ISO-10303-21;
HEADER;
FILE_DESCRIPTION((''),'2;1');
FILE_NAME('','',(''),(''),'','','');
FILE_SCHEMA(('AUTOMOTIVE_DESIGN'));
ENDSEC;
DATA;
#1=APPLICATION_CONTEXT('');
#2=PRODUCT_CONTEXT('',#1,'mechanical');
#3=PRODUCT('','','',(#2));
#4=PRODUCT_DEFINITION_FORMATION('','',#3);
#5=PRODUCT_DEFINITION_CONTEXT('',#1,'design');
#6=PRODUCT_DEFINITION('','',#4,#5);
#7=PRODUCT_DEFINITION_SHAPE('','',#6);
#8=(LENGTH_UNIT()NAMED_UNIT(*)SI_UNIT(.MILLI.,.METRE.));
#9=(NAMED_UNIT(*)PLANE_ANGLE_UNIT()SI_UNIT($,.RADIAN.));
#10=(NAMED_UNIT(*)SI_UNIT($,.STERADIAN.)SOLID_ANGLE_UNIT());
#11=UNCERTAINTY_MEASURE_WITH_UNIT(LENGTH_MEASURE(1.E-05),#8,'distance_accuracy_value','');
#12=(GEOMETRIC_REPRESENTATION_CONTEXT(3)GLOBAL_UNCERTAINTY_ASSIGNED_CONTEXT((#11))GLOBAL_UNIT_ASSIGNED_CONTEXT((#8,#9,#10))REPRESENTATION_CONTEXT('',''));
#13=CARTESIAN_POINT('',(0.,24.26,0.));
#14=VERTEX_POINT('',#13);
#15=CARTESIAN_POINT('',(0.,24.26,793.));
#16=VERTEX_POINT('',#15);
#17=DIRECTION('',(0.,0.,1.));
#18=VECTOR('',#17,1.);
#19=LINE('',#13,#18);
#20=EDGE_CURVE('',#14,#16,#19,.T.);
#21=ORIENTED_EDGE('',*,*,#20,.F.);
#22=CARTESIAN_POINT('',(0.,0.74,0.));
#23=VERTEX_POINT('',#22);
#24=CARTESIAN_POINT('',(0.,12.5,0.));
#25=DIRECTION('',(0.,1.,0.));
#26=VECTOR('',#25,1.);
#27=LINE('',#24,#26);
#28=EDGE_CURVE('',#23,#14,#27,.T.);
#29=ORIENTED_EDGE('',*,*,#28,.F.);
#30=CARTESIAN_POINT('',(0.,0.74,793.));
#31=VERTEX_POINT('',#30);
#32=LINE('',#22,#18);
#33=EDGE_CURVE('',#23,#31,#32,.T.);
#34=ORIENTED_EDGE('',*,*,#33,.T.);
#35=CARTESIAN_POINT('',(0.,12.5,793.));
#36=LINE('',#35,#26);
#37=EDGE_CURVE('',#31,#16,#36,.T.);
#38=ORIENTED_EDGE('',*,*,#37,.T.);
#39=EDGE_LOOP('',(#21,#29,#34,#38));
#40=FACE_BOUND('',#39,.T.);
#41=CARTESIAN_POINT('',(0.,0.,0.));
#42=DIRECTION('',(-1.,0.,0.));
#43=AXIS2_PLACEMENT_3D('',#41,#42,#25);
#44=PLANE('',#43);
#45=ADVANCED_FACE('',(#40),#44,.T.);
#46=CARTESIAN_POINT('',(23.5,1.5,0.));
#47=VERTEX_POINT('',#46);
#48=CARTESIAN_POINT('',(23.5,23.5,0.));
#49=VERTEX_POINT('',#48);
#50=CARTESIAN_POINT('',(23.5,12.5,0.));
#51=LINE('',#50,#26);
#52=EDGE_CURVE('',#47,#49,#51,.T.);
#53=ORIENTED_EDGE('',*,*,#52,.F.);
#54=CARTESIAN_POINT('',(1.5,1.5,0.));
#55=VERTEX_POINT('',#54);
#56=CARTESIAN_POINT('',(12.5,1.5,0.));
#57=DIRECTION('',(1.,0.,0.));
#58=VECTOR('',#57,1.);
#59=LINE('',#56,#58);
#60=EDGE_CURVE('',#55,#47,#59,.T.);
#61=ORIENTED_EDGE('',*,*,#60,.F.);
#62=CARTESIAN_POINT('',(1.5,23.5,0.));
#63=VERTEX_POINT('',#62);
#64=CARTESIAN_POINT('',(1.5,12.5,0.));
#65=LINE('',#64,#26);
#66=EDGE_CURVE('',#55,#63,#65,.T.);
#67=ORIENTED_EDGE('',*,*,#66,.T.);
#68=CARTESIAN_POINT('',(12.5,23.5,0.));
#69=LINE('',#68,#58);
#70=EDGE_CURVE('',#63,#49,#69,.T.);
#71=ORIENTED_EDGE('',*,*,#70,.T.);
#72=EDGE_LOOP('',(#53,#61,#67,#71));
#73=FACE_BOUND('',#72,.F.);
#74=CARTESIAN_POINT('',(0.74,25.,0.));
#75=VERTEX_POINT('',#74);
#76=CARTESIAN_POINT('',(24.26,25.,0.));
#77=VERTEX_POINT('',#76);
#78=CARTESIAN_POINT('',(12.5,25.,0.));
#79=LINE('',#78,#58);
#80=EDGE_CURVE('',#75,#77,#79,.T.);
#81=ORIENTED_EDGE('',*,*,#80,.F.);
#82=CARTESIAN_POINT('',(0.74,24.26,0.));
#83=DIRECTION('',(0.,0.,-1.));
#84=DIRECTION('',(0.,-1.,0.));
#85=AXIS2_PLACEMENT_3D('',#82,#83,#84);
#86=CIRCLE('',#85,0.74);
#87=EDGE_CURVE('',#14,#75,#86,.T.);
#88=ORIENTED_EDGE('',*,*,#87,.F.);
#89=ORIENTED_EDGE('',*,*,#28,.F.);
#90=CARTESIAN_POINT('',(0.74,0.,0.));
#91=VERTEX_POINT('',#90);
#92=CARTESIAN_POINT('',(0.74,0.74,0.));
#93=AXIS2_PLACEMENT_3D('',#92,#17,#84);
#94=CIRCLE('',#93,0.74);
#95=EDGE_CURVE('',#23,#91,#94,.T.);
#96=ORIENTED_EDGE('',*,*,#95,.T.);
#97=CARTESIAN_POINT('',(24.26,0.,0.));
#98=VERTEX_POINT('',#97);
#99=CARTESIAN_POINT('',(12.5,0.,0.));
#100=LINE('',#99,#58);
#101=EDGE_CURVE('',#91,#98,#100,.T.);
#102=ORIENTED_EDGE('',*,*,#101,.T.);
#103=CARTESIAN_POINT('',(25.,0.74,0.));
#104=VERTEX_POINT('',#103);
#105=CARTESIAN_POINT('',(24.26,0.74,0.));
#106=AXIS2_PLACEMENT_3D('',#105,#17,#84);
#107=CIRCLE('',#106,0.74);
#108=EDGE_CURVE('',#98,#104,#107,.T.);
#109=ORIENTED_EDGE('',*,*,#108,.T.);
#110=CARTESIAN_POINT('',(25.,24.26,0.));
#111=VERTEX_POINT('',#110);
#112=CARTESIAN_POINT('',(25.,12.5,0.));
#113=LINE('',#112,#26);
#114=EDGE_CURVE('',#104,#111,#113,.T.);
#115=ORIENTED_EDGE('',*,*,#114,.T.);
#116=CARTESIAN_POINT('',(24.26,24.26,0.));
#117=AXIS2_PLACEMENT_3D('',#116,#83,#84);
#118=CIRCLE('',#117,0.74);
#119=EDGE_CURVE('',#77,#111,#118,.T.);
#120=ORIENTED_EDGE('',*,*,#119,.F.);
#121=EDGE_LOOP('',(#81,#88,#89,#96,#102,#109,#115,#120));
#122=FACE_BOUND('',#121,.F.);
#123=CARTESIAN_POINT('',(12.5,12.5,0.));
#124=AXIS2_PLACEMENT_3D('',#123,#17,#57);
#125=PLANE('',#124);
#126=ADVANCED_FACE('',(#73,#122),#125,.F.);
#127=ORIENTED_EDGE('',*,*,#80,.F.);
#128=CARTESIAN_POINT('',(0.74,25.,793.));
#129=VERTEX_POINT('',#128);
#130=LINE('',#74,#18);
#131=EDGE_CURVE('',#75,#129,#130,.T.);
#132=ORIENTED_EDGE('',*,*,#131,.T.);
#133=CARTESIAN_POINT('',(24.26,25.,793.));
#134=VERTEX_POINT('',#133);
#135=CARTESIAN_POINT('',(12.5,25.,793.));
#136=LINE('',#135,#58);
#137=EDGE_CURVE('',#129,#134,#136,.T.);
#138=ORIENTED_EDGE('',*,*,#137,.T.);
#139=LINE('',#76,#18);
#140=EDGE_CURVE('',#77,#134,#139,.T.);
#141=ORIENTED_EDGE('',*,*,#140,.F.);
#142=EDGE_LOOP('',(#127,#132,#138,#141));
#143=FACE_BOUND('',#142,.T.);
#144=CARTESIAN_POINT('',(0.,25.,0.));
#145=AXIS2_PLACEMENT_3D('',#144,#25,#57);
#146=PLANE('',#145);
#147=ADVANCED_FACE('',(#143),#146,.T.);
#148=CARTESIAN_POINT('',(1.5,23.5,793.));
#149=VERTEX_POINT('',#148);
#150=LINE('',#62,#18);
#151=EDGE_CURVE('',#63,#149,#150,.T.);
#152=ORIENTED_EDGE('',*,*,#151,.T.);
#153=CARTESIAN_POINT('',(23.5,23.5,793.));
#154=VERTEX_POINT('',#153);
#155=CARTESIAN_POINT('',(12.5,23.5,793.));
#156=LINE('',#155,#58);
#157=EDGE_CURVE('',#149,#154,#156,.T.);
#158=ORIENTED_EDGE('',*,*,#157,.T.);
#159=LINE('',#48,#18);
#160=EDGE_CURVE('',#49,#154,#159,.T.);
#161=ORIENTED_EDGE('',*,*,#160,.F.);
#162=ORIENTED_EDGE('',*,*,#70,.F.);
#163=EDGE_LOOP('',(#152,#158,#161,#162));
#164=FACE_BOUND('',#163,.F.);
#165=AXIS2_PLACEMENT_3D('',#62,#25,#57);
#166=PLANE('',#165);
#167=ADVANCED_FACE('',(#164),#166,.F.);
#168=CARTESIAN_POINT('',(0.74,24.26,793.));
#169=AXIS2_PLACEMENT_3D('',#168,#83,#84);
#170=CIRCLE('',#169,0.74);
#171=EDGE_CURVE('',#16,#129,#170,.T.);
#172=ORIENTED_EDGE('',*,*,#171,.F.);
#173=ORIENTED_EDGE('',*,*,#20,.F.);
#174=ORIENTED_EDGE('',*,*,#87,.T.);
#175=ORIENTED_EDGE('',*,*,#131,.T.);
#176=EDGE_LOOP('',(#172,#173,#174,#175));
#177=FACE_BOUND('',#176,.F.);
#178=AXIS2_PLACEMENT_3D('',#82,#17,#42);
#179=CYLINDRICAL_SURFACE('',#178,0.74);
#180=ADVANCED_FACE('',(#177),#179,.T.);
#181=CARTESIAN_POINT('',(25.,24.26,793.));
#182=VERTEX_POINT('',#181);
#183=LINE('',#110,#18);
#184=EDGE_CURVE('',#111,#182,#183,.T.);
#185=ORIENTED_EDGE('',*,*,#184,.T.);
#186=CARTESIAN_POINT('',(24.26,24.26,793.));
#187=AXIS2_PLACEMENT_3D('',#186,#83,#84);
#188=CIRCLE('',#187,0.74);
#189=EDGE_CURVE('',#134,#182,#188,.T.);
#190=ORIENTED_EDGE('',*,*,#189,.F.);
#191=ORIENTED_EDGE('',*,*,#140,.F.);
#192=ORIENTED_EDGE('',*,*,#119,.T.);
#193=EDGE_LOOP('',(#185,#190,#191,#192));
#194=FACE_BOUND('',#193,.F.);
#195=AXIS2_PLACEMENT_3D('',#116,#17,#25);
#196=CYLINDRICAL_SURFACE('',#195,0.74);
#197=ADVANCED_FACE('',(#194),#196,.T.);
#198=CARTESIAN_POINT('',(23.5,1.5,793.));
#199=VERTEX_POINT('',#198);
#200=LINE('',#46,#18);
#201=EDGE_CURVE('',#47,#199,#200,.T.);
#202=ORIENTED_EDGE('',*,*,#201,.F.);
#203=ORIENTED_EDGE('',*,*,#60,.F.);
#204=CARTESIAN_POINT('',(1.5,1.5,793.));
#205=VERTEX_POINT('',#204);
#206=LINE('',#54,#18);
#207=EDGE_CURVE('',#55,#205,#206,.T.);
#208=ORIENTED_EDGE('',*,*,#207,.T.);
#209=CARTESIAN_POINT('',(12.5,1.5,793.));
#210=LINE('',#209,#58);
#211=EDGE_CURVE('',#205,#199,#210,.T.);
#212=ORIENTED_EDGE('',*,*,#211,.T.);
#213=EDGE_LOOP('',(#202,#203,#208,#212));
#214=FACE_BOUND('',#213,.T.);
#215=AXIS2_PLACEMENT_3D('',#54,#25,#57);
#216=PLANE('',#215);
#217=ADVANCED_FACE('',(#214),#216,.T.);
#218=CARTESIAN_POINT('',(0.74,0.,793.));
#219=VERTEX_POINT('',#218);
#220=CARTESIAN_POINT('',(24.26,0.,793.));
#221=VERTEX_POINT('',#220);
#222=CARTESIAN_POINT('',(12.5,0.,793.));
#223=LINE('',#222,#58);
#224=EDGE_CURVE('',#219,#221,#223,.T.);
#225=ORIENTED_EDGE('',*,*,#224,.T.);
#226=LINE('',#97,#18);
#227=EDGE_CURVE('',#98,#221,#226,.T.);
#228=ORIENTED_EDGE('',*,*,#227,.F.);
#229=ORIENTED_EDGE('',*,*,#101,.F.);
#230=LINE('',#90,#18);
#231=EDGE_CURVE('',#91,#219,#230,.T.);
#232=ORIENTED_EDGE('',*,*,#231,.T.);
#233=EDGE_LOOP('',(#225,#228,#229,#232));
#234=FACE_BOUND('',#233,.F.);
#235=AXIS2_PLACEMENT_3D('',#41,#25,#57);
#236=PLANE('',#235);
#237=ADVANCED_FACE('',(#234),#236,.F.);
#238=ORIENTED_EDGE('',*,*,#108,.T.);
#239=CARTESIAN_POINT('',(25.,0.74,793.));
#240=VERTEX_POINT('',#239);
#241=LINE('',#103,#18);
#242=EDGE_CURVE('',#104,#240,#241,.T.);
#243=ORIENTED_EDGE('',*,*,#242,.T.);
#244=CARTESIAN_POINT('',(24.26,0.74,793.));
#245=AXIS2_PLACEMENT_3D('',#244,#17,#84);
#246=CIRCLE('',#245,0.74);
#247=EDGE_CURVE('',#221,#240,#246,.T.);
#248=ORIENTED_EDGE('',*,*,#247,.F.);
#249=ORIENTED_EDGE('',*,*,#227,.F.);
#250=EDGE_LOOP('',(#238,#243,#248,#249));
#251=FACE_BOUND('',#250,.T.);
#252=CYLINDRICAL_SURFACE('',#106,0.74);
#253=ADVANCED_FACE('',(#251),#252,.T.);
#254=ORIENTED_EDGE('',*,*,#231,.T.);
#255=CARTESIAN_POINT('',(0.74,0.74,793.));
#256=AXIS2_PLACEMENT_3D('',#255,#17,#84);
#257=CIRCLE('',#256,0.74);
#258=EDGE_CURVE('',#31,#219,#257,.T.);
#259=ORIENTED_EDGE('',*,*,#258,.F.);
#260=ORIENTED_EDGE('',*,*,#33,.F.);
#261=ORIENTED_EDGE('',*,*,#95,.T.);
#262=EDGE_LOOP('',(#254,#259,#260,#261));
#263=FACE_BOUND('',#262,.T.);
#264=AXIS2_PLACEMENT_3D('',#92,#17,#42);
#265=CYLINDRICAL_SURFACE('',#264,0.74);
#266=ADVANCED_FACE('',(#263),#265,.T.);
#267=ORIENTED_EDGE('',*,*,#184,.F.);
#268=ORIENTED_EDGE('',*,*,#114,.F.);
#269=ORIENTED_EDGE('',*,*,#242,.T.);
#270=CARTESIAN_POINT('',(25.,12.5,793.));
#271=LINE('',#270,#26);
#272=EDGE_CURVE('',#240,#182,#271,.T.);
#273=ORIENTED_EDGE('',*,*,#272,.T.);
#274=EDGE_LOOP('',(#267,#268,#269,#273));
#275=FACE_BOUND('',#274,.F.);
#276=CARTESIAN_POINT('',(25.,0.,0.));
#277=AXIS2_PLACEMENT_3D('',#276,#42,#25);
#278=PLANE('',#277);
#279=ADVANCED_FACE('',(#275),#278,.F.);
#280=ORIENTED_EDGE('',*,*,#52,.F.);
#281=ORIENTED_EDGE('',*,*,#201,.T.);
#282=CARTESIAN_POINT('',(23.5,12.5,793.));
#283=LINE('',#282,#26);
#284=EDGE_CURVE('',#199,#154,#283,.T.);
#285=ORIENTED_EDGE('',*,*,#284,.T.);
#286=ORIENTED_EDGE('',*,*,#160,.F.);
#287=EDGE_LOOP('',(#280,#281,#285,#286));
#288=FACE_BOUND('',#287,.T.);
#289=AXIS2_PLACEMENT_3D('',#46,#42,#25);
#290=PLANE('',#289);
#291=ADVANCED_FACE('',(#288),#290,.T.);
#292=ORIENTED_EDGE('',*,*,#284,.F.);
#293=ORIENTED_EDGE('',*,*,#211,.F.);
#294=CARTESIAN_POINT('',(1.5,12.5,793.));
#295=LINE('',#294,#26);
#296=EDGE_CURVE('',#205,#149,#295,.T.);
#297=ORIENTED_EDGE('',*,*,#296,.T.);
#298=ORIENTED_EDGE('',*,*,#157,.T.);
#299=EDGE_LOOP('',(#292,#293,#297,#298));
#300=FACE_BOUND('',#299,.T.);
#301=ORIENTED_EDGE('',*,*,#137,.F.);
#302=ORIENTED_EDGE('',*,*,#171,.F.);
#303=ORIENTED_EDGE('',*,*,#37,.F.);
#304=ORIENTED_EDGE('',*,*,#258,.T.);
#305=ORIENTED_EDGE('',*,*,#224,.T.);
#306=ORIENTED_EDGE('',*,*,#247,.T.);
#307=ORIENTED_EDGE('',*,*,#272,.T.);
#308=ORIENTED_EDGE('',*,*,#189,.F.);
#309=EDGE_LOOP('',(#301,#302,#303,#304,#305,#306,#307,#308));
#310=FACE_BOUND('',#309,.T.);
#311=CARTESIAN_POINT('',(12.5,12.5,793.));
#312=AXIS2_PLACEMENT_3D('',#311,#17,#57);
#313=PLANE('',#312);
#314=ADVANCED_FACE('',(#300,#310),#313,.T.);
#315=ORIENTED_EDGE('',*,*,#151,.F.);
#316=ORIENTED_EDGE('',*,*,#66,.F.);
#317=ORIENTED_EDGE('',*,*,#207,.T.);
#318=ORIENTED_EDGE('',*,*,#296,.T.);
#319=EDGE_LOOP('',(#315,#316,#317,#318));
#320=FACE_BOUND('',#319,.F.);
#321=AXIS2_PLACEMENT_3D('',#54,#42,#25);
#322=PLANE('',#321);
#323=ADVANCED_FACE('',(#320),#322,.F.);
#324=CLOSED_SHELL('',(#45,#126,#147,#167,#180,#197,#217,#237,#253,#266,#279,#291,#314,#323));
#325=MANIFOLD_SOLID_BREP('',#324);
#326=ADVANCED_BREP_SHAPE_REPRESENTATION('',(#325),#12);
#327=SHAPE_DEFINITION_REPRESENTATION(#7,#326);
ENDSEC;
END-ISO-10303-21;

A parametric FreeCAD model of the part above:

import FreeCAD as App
import Part
import Sketcher

V = App.Vector
Q = App.Units.Quantity


def edges_at(feature, points):
    """Names of the edges that pass closest to the given points."""
    edges = feature.Shape.Edges
    near = lambda p: min(range(len(edges)), key=lambda i: edges[i].distToShape(Part.Vertex(*p))[0])
    return sorted({f"Edge{near(p) + 1}" for p in points})


def add_polygon(sketch, points):
    """Adds a closed chain of lines whose ends are joined by coincident constraints."""
    first, n = sketch.GeometryCount, len(points)
    for a, b in zip(points, points[1:] + points[:1]):
        sketch.addGeometry(Part.LineSegment(App.Vector(*a, 0), App.Vector(*b, 0)), False)
    for i in range(n):
        sketch.addConstraint(Sketcher.Constraint("Coincident", first + i, 2, first + (i + 1) % n, 1))

doc = App.newDocument("Part")
body = doc.addObject("PartDesign::Body", "Body")

# Sketch on XY plane
sketch1 = body.newObject("Sketcher::SketchObject", "Sketch")
sketch1.AttachmentSupport = (doc.getObject("XY_Plane"), [""])
sketch1.MapMode = "FlatFace"
add_polygon(sketch1, [(0, 25), (0, 0), (25, 0), (25, 25)])  # lines 0-3
add_polygon(sketch1, [(24, 2), (2, 2), (2, 24), (24, 24)])  # lines 4-7
sketch1.addConstraint(Sketcher.Constraint("Vertical", 0))
sketch1.addConstraint(Sketcher.Constraint("Horizontal", 1))
sketch1.addConstraint(Sketcher.Constraint("Vertical", 2))
sketch1.addConstraint(Sketcher.Constraint("Horizontal", 3))
sketch1.addConstraint(Sketcher.Constraint("Horizontal", 4))
sketch1.addConstraint(Sketcher.Constraint("Vertical", 5))
sketch1.addConstraint(Sketcher.Constraint("Horizontal", 6))
sketch1.addConstraint(Sketcher.Constraint("Vertical", 7))
sketch1.addConstraint(Sketcher.Constraint("Coincident", 0, 2, -1, 1))
sketch1.addConstraint(Sketcher.Constraint("Equal", 3, 0))
sketch1.addConstraint(Sketcher.Constraint("Equal", 6, 5))
sketch1.addConstraint(Sketcher.Constraint("DistanceX", 1, 1, 1, 2, Q("25 mm")))
sketch1.addConstraint(Sketcher.Constraint("DistanceX", 4, 2, 4, 1, Q("22 mm")))
sketch1.addConstraint(Sketcher.Constraint("DistanceX", -1, 1, 4, 2, Q("1.5 mm")))
sketch1.addConstraint(Sketcher.Constraint("DistanceY", -1, 1, 4, 2, Q("1.5 mm")))
pad1 = body.newObject("PartDesign::Pad", "Pad")
pad1.Profile = sketch1
pad1.Length = 793
doc.recompute()

fillet = body.newObject("PartDesign::Fillet", "Fillet")
fillet.Base = (pad1, edges_at(pad1, [
    (25, 0, 396.5),
    (0, 0, 396.5),
    (25, 25, 396.5),
    (0, 25, 396.5),
]))
fillet.Radius = 0.74

doc.recompute()
